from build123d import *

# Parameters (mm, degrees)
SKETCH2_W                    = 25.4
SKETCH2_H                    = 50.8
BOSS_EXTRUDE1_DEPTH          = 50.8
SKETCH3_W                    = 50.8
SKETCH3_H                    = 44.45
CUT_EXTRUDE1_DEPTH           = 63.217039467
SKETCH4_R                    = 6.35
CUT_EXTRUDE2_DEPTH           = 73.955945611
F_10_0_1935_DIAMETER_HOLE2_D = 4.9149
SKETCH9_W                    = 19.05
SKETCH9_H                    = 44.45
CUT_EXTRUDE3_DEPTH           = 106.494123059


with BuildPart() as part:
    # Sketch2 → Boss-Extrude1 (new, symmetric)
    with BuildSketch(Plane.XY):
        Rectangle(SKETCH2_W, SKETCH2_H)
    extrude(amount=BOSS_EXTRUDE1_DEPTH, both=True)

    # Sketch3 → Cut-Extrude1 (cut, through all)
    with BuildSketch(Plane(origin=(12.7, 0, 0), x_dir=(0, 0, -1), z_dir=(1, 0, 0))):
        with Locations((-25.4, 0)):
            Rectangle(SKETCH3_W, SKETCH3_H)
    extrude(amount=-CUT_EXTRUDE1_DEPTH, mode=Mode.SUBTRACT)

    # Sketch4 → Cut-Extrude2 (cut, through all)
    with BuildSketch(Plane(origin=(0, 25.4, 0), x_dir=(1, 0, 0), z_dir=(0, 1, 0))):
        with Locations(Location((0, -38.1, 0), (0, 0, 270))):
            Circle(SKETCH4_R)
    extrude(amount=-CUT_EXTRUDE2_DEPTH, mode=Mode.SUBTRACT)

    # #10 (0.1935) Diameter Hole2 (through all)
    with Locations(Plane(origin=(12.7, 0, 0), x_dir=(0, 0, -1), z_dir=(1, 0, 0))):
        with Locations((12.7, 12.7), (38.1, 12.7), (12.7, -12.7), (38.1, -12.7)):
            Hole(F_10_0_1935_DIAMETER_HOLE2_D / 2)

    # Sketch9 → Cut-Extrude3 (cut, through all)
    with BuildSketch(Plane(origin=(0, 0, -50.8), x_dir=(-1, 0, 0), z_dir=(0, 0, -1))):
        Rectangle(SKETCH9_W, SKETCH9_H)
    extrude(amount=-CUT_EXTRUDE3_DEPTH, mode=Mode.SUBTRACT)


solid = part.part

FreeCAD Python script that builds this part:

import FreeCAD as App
import Part
import Sketcher
from FreeCAD import Vector
Q = App.Units.Quantity

doc = App.newDocument("Part")
params = doc.addObject("Spreadsheet::Sheet", "Params")
for row, (alias, value) in enumerate([
    ("sketch1_width", "1 in"),
    ("sketch1_height", "2 in"),
    ("pad1_length", "4 in"),
    ("sketch2_height", "2 in"),
    ("sketch2_width", "1.75 in"),
    ("sketch3_diameter", "0.5 in"),
    ("hole_diameter", "0.1935 in"),
    ("sketch5_width", "0.75 in"),
    ("sketch5_height", "1.75 in"),
], start=1):
    params.set(f"A{row}", alias)
    params.set(f"B{row}", "=" + value)
    params.setAlias(f"B{row}", alias)

body = doc.addObject("PartDesign::Body", "Body")

# Sketch on XY plane
sketch1 = body.newObject("Sketcher::SketchObject", "Sketch")
sketch1.AttachmentSupport = (doc.getObject("XY_Plane"), [""])
sketch1.MapMode = "FlatFace"
sketch1.addGeometry(Part.LineSegment(Vector(-13, 25, 0), Vector(-13, -25, 0)), False)
sketch1.addGeometry(Part.LineSegment(Vector(-13, -25, 0), Vector(13, -25, 0)), False)
sketch1.addGeometry(Part.LineSegment(Vector(13, -25, 0), Vector(13, 25, 0)), False)
sketch1.addGeometry(Part.LineSegment(Vector(13, 25, 0), Vector(-13, 25, 0)), False)
sketch1.addConstraint(Sketcher.Constraint("Coincident", 0, 2, 1, 1))
sketch1.addConstraint(Sketcher.Constraint("Coincident", 1, 2, 2, 1))
sketch1.addConstraint(Sketcher.Constraint("Coincident", 2, 2, 3, 1))
sketch1.addConstraint(Sketcher.Constraint("Coincident", 3, 2, 0, 1))
sketch1.addConstraint(Sketcher.Constraint("Vertical", 0))
sketch1.addConstraint(Sketcher.Constraint("Horizontal", 1))
sketch1.addConstraint(Sketcher.Constraint("Vertical", 2))
sketch1.addConstraint(Sketcher.Constraint("Horizontal", 3))
sketch1.addConstraint(Sketcher.Constraint("Symmetric", 0, 2, 2, 2, -1, 1))
sketch1.addConstraint(Sketcher.Constraint("DistanceX", 1, 1, 1, 2, Q("1 in")))
sketch1.addConstraint(Sketcher.Constraint("DistanceY", 0, 2, 0, 1, Q("2 in")))
sketch1.setExpression("Constraints[9]", "Params.sketch1_width")
sketch1.setExpression("Constraints[10]", "Params.sketch1_height")
pad1 = body.newObject("PartDesign::Pad", "Pad")
pad1.Profile = sketch1
pad1.setExpression("Length", "Params.pad1_length")
pad1.Midplane = True

# Sketch on YZ plane
sketch2 = body.newObject("Sketcher::SketchObject", "Sketch001")
sketch2.AttachmentSupport = (doc.getObject("YZ_Plane"), [""])
sketch2.MapMode = "FlatFace"
sketch2.AttachmentOffset = App.Placement(Vector(0, 0, 0.5 * 25.4), App.Rotation())
sketch2.addGeometry(Part.LineSegment(Vector(22, 51, 0), Vector(-22, 51, 0)), False)
sketch2.addGeometry(Part.LineSegment(Vector(-22, 51, 0), Vector(-22, 0, 0)), False)
sketch2.addGeometry(Part.LineSegment(Vector(-22, 0, 0), Vector(22, 0, 0)), False)
sketch2.addGeometry(Part.LineSegment(Vector(22, 0, 0), Vector(22, 51, 0)), False)
sketch2.addConstraint(Sketcher.Constraint("Coincident", 0, 2, 1, 1))
sketch2.addConstraint(Sketcher.Constraint("Coincident", 1, 2, 2, 1))
sketch2.addConstraint(Sketcher.Constraint("Coincident", 2, 2, 3, 1))
sketch2.addConstraint(Sketcher.Constraint("Coincident", 3, 2, 0, 1))
sketch2.addConstraint(Sketcher.Constraint("Horizontal", 0))
sketch2.addConstraint(Sketcher.Constraint("Vertical", 1))
sketch2.addConstraint(Sketcher.Constraint("Horizontal", 2))
sketch2.addConstraint(Sketcher.Constraint("Vertical", 3))
sketch2.addConstraint(Sketcher.Constraint("Symmetric", 1, 2, 2, 2, -1, 1))
sketch2.addConstraint(Sketcher.Constraint("DistanceY", 1, 2, 1, 1, Q("2 in")))
sketch2.addConstraint(Sketcher.Constraint("DistanceX", 0, 2, 0, 1, Q("1.75 in")))
sketch2.setExpression("Constraints[9]", "Params.sketch2_height")
sketch2.setExpression("Constraints[10]", "Params.sketch2_width")
pocket1 = body.newObject("PartDesign::Pocket", "Pocket")
pocket1.Profile = sketch2
pocket1.Type = "ThroughAll"

# Sketch on XZ plane
sketch3 = body.newObject("Sketcher::SketchObject", "Sketch002")
sketch3.AttachmentSupport = (doc.getObject("XZ_Plane"), [""])
sketch3.MapMode = "FlatFace"
sketch3.AttachmentOffset = App.Placement(Vector(0, 0, -1 * 25.4), App.Rotation())
sketch3.addGeometry(Part.Circle(Vector(0, 38, 0), Vector(0, 0, 1), 6), False)
sketch3.addConstraint(Sketcher.Constraint("PointOnObject", 0, 3, -2))
sketch3.addConstraint(Sketcher.Constraint("Diameter", 0, Q("0.5 in")))
sketch3.addConstraint(Sketcher.Constraint("DistanceY", -1, 1, 0, 3, Q("1.5 in")))
sketch3.setExpression("Constraints[1]", "Params.sketch3_diameter")
pocket2 = body.newObject("PartDesign::Pocket", "Pocket001")
pocket2.Profile = sketch3
pocket2.Type = "ThroughAll"
pocket2.Reversed = True

# Sketch on YZ plane
sketch4 = body.newObject("Sketcher::SketchObject", "Sketch003")
sketch4.AttachmentSupport = (doc.getObject("YZ_Plane"), [""])
sketch4.MapMode = "FlatFace"
sketch4.AttachmentOffset = App.Placement(Vector(0, 0, 0.5 * 25.4), App.Rotation())
sketch4.addGeometry(Part.Circle(Vector(12.7, -12.7, 0), Vector(0, 0, 1), 2.5), False)
sketch4.addGeometry(Part.Circle(Vector(12.7, -38.1, 0), Vector(0, 0, 1), 2.5), False)
sketch4.addGeometry(Part.Circle(Vector(-12.7, -12.7, 0), Vector(0, 0, 1), 2.5), False)
sketch4.addGeometry(Part.Circle(Vector(-12.7, -38.1, 0), Vector(0, 0, 1), 2.5), False)
sketch4.addConstraint(Sketcher.Constraint("Equal", 0, 1))
sketch4.addConstraint(Sketcher.Constraint("Equal", 1, 2))
sketch4.addConstraint(Sketcher.Constraint("Equal", 2, 3))
sketch4.addConstraint(Sketcher.Constraint("Symmetric", 0, 3, 2, 3, -2))
sketch4.addConstraint(Sketcher.Constraint("Symmetric", 1, 3, 3, 3, -2))
sketch4.addConstraint(Sketcher.Constraint("Vertical", 0, 3, 1, 3))
sketch4.addConstraint(Sketcher.Constraint("DistanceY", 1, 3, 0, 3, Q("1 in")))
sketch4.addConstraint(Sketcher.Constraint("DistanceX", 2, 3, 0, 3, Q("1 in")))
sketch4.addConstraint(Sketcher.Constraint("Diameter", 0, Q("0.1935 in")))
sketch4.addConstraint(Sketcher.Constraint("DistanceY", 0, 3, -1, 1, Q("0.5 in")))
doc.recompute()
hole = body.newObject("PartDesign::Hole", "Hole")
hole.Profile = sketch4
hole.ThreadType = "None"
hole.setExpression("Diameter", "Params.hole_diameter")
hole.DepthType = "ThroughAll"

# Sketch on XY plane
sketch5 = body.newObject("Sketcher::SketchObject", "Sketch004")
sketch5.AttachmentSupport = (doc.getObject("XY_Plane"), [""])
sketch5.MapMode = "FlatFace"
sketch5.AttachmentOffset = App.Placement(Vector(0, 0, -2 * 25.4), App.Rotation())
sketch5.addGeometry(Part.LineSegment(Vector(10, 22, 0), Vector(10, -22, 0)), False)
sketch5.addGeometry(Part.LineSegment(Vector(10, -22, 0), Vector(-10, -22, 0)), False)
sketch5.addGeometry(Part.LineSegment(Vector(-10, -22, 0), Vector(-10, 22, 0)), False)
sketch5.addGeometry(Part.LineSegment(Vector(-10, 22, 0), Vector(10, 22, 0)), False)
sketch5.addConstraint(Sketcher.Constraint("Coincident", 0, 2, 1, 1))
sketch5.addConstraint(Sketcher.Constraint("Coincident", 1, 2, 2, 1))
sketch5.addConstraint(Sketcher.Constraint("Coincident", 2, 2, 3, 1))
sketch5.addConstraint(Sketcher.Constraint("Coincident", 3, 2, 0, 1))
sketch5.addConstraint(Sketcher.Constraint("Vertical", 0))
sketch5.addConstraint(Sketcher.Constraint("Horizontal", 1))
sketch5.addConstraint(Sketcher.Constraint("Vertical", 2))
sketch5.addConstraint(Sketcher.Constraint("Horizontal", 3))
sketch5.addConstraint(Sketcher.Constraint("Symmetric", 0, 2, 2, 2, -1, 1))
sketch5.addConstraint(Sketcher.Constraint("DistanceX", 1, 2, 1, 1, Q("0.75 in")))
sketch5.addConstraint(Sketcher.Constraint("DistanceY", 0, 2, 0, 1, Q("1.75 in")))
sketch5.setExpression("Constraints[9]", "Params.sketch5_width")
sketch5.setExpression("Constraints[10]", "Params.sketch5_height")
pocket3 = body.newObject("PartDesign::Pocket", "Pocket002")
pocket3.Profile = sketch5
pocket3.Type = "ThroughAll"
pocket3.Reversed = True

doc.recompute()
